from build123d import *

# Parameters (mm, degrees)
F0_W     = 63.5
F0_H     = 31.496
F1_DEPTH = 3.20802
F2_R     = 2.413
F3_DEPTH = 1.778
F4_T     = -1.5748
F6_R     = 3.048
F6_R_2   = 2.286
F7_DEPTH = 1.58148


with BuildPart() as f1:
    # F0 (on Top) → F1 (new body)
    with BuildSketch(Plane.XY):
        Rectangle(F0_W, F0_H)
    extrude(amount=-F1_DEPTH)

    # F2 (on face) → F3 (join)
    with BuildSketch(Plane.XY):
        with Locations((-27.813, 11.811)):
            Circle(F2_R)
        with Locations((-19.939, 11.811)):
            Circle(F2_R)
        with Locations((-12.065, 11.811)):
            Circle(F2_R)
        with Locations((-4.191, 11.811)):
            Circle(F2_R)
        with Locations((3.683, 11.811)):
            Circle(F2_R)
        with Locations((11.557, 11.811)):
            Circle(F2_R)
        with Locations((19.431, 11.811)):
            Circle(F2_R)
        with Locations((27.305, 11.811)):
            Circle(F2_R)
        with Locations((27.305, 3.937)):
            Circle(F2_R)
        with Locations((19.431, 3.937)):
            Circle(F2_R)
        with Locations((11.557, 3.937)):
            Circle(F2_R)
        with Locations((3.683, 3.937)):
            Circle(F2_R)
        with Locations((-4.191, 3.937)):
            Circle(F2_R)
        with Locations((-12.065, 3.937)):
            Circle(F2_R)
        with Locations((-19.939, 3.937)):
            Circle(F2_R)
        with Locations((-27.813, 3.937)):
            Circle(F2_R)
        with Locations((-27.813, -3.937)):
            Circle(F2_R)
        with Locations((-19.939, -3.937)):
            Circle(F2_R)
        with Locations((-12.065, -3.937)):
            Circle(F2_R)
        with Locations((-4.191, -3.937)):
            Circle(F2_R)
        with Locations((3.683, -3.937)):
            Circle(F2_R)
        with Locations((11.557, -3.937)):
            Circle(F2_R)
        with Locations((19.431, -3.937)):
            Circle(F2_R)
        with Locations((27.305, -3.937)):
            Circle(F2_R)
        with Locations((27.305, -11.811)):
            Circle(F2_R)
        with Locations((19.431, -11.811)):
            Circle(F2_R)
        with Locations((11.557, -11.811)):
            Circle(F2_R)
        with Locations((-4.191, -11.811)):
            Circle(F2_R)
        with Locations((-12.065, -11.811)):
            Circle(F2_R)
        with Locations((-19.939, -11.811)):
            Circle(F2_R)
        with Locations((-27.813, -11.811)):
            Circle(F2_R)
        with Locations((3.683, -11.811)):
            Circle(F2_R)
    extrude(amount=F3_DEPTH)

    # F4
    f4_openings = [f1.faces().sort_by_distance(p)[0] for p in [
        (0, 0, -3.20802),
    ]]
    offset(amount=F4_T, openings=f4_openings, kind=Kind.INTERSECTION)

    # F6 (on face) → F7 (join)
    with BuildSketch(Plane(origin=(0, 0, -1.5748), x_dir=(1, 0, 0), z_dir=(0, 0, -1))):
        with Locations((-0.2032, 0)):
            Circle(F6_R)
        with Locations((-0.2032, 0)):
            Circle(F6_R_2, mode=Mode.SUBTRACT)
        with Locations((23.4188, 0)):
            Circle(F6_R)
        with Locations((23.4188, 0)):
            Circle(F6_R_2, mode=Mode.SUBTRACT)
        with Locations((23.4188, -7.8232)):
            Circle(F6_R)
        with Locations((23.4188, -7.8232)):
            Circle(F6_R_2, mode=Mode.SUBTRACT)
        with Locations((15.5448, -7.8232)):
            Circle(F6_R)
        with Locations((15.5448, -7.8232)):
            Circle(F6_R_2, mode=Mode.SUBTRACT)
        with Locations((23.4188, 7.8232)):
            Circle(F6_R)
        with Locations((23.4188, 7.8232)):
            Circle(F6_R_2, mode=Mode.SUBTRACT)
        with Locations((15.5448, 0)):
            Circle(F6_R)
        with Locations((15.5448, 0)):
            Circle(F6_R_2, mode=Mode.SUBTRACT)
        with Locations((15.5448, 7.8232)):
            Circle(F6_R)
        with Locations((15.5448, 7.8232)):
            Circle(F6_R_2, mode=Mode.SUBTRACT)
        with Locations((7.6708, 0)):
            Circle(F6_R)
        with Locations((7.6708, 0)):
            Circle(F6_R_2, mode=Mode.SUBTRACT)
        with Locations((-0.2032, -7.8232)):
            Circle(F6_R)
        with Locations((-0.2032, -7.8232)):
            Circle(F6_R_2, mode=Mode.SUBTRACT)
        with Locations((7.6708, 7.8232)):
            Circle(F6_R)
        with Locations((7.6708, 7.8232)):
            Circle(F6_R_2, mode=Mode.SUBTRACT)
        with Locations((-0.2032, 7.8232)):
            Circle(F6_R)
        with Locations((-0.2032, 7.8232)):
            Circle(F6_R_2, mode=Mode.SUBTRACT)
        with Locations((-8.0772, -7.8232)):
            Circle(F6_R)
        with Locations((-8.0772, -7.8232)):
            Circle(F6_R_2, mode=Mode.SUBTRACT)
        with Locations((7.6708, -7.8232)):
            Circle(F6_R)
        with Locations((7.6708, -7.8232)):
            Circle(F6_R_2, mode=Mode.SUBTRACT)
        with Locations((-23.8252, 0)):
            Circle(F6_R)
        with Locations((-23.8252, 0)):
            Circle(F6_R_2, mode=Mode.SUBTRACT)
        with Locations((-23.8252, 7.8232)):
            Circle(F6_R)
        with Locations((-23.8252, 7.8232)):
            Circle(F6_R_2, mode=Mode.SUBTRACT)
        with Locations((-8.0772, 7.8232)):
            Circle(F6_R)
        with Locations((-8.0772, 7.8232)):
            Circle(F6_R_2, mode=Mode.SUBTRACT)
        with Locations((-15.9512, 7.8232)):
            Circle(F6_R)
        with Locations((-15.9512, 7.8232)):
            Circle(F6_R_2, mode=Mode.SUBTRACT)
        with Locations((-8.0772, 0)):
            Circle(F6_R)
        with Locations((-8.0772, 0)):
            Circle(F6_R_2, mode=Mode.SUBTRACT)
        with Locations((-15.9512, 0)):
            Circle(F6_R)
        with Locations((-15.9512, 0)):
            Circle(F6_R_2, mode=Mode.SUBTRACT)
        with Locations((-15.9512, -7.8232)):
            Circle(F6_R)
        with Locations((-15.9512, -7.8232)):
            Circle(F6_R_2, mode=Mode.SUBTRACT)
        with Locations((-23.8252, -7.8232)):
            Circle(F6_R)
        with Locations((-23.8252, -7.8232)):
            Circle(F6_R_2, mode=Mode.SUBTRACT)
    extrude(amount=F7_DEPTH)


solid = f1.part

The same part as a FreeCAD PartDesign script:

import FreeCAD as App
import Part
import Sketcher

V = App.Vector
Q = App.Units.Quantity


def faces_at(feature, points):
    """Names of the faces that lie closest to the given points."""
    faces = feature.Shape.Faces
    near = lambda p: min(range(len(faces)), key=lambda i: faces[i].distToShape(Part.Vertex(*p))[0])
    return sorted({f"Face{near(p) + 1}" for p in points})

doc = App.newDocument("Part")
body = doc.addObject("PartDesign::Body", "Body")

# Sketch on XY plane
sketch1 = body.newObject("Sketcher::SketchObject", "Sketch")
sketch1.AttachmentSupport = (doc.getObject("XY_Plane"), [""])
sketch1.MapMode = "FlatFace"
sketch1.addGeometry([
    Part.LineSegment(V(-32, 16, 0), V(-32, -16, 0)),
    Part.LineSegment(V(-32, -16, 0), V(32, -16, 0)),
    Part.LineSegment(V(32, -16, 0), V(32, 16, 0)),
    Part.LineSegment(V(32, 16, 0), V(-32, 16, 0)),
], False)
sketch1.addConstraint([
    Sketcher.Constraint("Coincident", 0, 2, 1, 1),
    Sketcher.Constraint("Coincident", 1, 2, 2, 1),
    Sketcher.Constraint("Coincident", 2, 2, 3, 1),
    Sketcher.Constraint("Coincident", 3, 2, 0, 1),
    Sketcher.Constraint("Vertical", 0),
    Sketcher.Constraint("Horizontal", 1),
    Sketcher.Constraint("Vertical", 2),
    Sketcher.Constraint("Horizontal", 3),
    Sketcher.Constraint("Symmetric", 0, 2, 2, 2, -1, 1),
    Sketcher.Constraint("DistanceX", 1, 1, 1, 2, Q("2.5 in")),
    Sketcher.Constraint("DistanceY", 0, 2, 0, 1, Q("1.24 in")),
])
pad1 = body.newObject("PartDesign::Pad", "Pad")
pad1.Profile = sketch1
pad1.Length = Q("0.1263 in")
pad1.Reversed = True

# Sketch on XY plane
sketch2 = body.newObject("Sketcher::SketchObject", "Sketch001")
sketch2.AttachmentSupport = (doc.getObject("XY_Plane"), [""])
sketch2.MapMode = "FlatFace"
sketch2.addGeometry([
    Part.Circle(V(-27.8, 11.8, 0), V(0, 0, 1), 2.4),  # 0
    Part.Circle(V(-19.9, 11.8, 0), V(0, 0, 1), 2.4),  # 1
    Part.Circle(V(-12.1, 11.8, 0), V(0, 0, 1), 2.4),  # 2
    Part.Circle(V(-4.2, 11.8, 0), V(0, 0, 1), 2.4),  # 3
    Part.Circle(V(3.7, 11.8, 0), V(0, 0, 1), 2.4),  # 4
    Part.Circle(V(11.6, 11.8, 0), V(0, 0, 1), 2.4),  # 5
    Part.Circle(V(19.4, 11.8, 0), V(0, 0, 1), 2.4),  # 6
    Part.Circle(V(27.3, 11.8, 0), V(0, 0, 1), 2.4),  # 7
    Part.Circle(V(27.3, 3.9, 0), V(0, 0, 1), 2.4),  # 8
    Part.Circle(V(19.4, 3.9, 0), V(0, 0, 1), 2.4),  # 9
    Part.Circle(V(11.6, 3.9, 0), V(0, 0, 1), 2.4),  # 10
    Part.Circle(V(3.7, 3.9, 0), V(0, 0, 1), 2.4),  # 11
    Part.Circle(V(-4.2, 3.9, 0), V(0, 0, 1), 2.4),  # 12
    Part.Circle(V(-12.1, 3.9, 0), V(0, 0, 1), 2.4),  # 13
    Part.Circle(V(-19.9, 3.9, 0), V(0, 0, 1), 2.4),  # 14
    Part.Circle(V(-27.8, 3.9, 0), V(0, 0, 1), 2.4),  # 15
    Part.Circle(V(-27.8, -3.9, 0), V(0, 0, 1), 2.4),  # 16
    Part.Circle(V(-19.9, -3.9, 0), V(0, 0, 1), 2.4),  # 17
    Part.Circle(V(-12.1, -3.9, 0), V(0, 0, 1), 2.4),  # 18
    Part.Circle(V(-4.2, -3.9, 0), V(0, 0, 1), 2.4),  # 19
    Part.Circle(V(3.7, -3.9, 0), V(0, 0, 1), 2.4),  # 20
    Part.Circle(V(11.6, -3.9, 0), V(0, 0, 1), 2.4),  # 21
    Part.Circle(V(19.4, -3.9, 0), V(0, 0, 1), 2.4),  # 22
    Part.Circle(V(27.3, -3.9, 0), V(0, 0, 1), 2.4),  # 23
    Part.Circle(V(27.3, -11.8, 0), V(0, 0, 1), 2.4),  # 24
    Part.Circle(V(19.4, -11.8, 0), V(0, 0, 1), 2.4),  # 25
    Part.Circle(V(11.6, -11.8, 0), V(0, 0, 1), 2.4),  # 26
    Part.Circle(V(-4.2, -11.8, 0), V(0, 0, 1), 2.4),  # 27
    Part.Circle(V(-12.1, -11.8, 0), V(0, 0, 1), 2.4),  # 28
    Part.Circle(V(-19.9, -11.8, 0), V(0, 0, 1), 2.4),  # 29
    Part.Circle(V(-27.8, -11.8, 0), V(0, 0, 1), 2.4),  # 30
    Part.Circle(V(3.7, -11.8, 0), V(0, 0, 1), 2.4),  # 31
], False)
sketch2.addConstraint([
    Sketcher.Constraint("Equal", 0, 1),
    Sketcher.Constraint("Equal", 1, 2),
    Sketcher.Constraint("Equal", 2, 3),
    Sketcher.Constraint("Equal", 3, 4),
    Sketcher.Constraint("Equal", 4, 5),
    Sketcher.Constraint("Equal", 5, 6),
    Sketcher.Constraint("Equal", 6, 7),
    Sketcher.Constraint("Equal", 7, 8),
    Sketcher.Constraint("Equal", 8, 9),
    Sketcher.Constraint("Equal", 9, 10),
    Sketcher.Constraint("Equal", 10, 11),
    Sketcher.Constraint("Equal", 11, 12),
    Sketcher.Constraint("Equal", 12, 13),
    Sketcher.Constraint("Equal", 13, 14),
    Sketcher.Constraint("Equal", 14, 15),
    Sketcher.Constraint("Equal", 15, 16),
    Sketcher.Constraint("Equal", 16, 17),
    Sketcher.Constraint("Equal", 17, 18),
    Sketcher.Constraint("Equal", 18, 19),
    Sketcher.Constraint("Equal", 19, 20),
    Sketcher.Constraint("Equal", 20, 21),
    Sketcher.Constraint("Equal", 21, 22),
    Sketcher.Constraint("Equal", 22, 23),
    Sketcher.Constraint("Equal", 23, 24),
    Sketcher.Constraint("Equal", 24, 25),
    Sketcher.Constraint("Equal", 25, 26),
    Sketcher.Constraint("Equal", 26, 27),
    Sketcher.Constraint("Equal", 27, 28),
    Sketcher.Constraint("Equal", 28, 29),
    Sketcher.Constraint("Equal", 29, 30),
    Sketcher.Constraint("Equal", 30, 31),
    Sketcher.Constraint("Symmetric", 15, 3, 16, 3, -1),
    Sketcher.Constraint("Symmetric", 14, 3, 17, 3, -1),
    Sketcher.Constraint("Symmetric", 13, 3, 18, 3, -1),
    Sketcher.Constraint("Symmetric", 12, 3, 19, 3, -1),
    Sketcher.Constraint("Symmetric", 11, 3, 20, 3, -1),
    Sketcher.Constraint("Symmetric", 10, 3, 21, 3, -1),
    Sketcher.Constraint("Symmetric", 9, 3, 22, 3, -1),
    Sketcher.Constraint("Symmetric", 8, 3, 23, 3, -1),
    Sketcher.Constraint("Symmetric", 7, 3, 24, 3, -1),
    Sketcher.Constraint("Symmetric", 6, 3, 25, 3, -1),
    Sketcher.Constraint("Symmetric", 5, 3, 26, 3, -1),
    Sketcher.Constraint("Symmetric", 3, 3, 27, 3, -1),
    Sketcher.Constraint("Symmetric", 2, 3, 28, 3, -1),
    Sketcher.Constraint("Symmetric", 1, 3, 29, 3, -1),
    Sketcher.Constraint("Symmetric", 0, 3, 30, 3, -1),
    Sketcher.Constraint("Symmetric", 4, 3, 31, 3, -1),
    Sketcher.Constraint("Horizontal", 0, 3, 1, 3),
    Sketcher.Constraint("Horizontal", 1, 3, 2, 3),
    Sketcher.Constraint("Horizontal", 2, 3, 3, 3),
    Sketcher.Constraint("Horizontal", 3, 3, 4, 3),
    Sketcher.Constraint("Horizontal", 4, 3, 5, 3),
    Sketcher.Constraint("Horizontal", 5, 3, 6, 3),
    Sketcher.Constraint("Horizontal", 6, 3, 7, 3),
    Sketcher.Constraint("Horizontal", 8, 3, 9, 3),
    Sketcher.Constraint("Horizontal", 9, 3, 10, 3),
    Sketcher.Constraint("Horizontal", 10, 3, 11, 3),
    Sketcher.Constraint("Horizontal", 11, 3, 12, 3),
    Sketcher.Constraint("Horizontal", 12, 3, 13, 3),
    Sketcher.Constraint("Horizontal", 13, 3, 14, 3),
    Sketcher.Constraint("Horizontal", 14, 3, 15, 3),
    Sketcher.Constraint("Vertical", 7, 3, 8, 3),
    Sketcher.Constraint("Vertical", 6, 3, 9, 3),
    Sketcher.Constraint("Vertical", 5, 3, 10, 3),
    Sketcher.Constraint("Vertical", 4, 3, 11, 3),
    Sketcher.Constraint("Vertical", 3, 3, 12, 3),
    Sketcher.Constraint("Vertical", 2, 3, 13, 3),
    Sketcher.Constraint("Vertical", 1, 3, 14, 3),
    Sketcher.Constraint("Vertical", 0, 3, 15, 3),
    Sketcher.Constraint("Diameter", 0, Q("0.19 in")),
    Sketcher.Constraint("DistanceX", 0, 3, 1, 3, Q("0.31 in")),
    Sketcher.Constraint("DistanceX", 1, 3, 2, 3, Q("0.31 in")),
    Sketcher.Constraint("DistanceX", 2, 3, 3, 3, Q("0.31 in")),
    Sketcher.Constraint("DistanceX", 3, 3, 4, 3, Q("0.31 in")),
    Sketcher.Constraint("DistanceX", 4, 3, 5, 3, Q("0.31 in")),
    Sketcher.Constraint("DistanceX", 5, 3, 6, 3, Q("0.31 in")),
    Sketcher.Constraint("DistanceX", 6, 3, 7, 3, Q("0.31 in")),
    Sketcher.Constraint("DistanceY", 8, 3, 7, 3, Q("0.31 in")),
    Sketcher.Constraint("DistanceY", 16, 3, 15, 3, Q("0.31 in")),
    Sketcher.Constraint("DistanceX", 0, 3, -1, 1, Q("1.095 in")),
])
pad2 = body.newObject("PartDesign::Pad", "Pad001")
pad2.Profile = sketch2
pad2.Length = Q("0.07 in")
doc.recompute()

thickness = body.newObject("PartDesign::Thickness", "Thickness")
thickness.Base = (pad2, faces_at(pad2, [(0, 0, -3.208)]))
thickness.Value = Q("0.062 in")
thickness.Reversed = True
thickness.Join = "Intersection"

# Sketch on XY plane
sketch3 = body.newObject("Sketcher::SketchObject", "Sketch002")
sketch3.AttachmentSupport = (doc.getObject("XY_Plane"), [""])
sketch3.MapMode = "FlatFace"
sketch3.AttachmentOffset = App.Placement(V(0, 0, -0.062 * 25.4), App.Rotation())
sketch3.addGeometry([
    Part.Circle(V(-0.2, 0, 0), V(0, 0, 1), 3),  # 0
    Part.Circle(V(-0.2, 0, 0), V(0, 0, 1), 2.3),  # 1
    Part.Circle(V(23.4, 0, 0), V(0, 0, 1), 3),  # 2
    Part.Circle(V(23.4, 0, 0), V(0, 0, 1), 2.3),  # 3
    Part.Circle(V(23.4, 7.8, 0), V(0, 0, 1), 3),  # 4
    Part.Circle(V(23.4, 7.8, 0), V(0, 0, 1), 2.3),  # 5
    Part.Circle(V(15.5, 7.8, 0), V(0, 0, 1), 3),  # 6
    Part.Circle(V(15.5, 7.8, 0), V(0, 0, 1), 2.3),  # 7
    Part.Circle(V(23.4, -7.8, 0), V(0, 0, 1), 3),  # 8
    Part.Circle(V(23.4, -7.8, 0), V(0, 0, 1), 2.3),  # 9
    Part.Circle(V(15.5, 0, 0), V(0, 0, 1), 3),  # 10
    Part.Circle(V(15.5, 0, 0), V(0, 0, 1), 2.3),  # 11
    Part.Circle(V(15.5, -7.8, 0), V(0, 0, 1), 3),  # 12
    Part.Circle(V(15.5, -7.8, 0), V(0, 0, 1), 2.3),  # 13
    Part.Circle(V(7.7, 0, 0), V(0, 0, 1), 3),  # 14
    Part.Circle(V(7.7, 0, 0), V(0, 0, 1), 2.3),  # 15
    Part.Circle(V(-0.2, 7.8, 0), V(0, 0, 1), 3),  # 16
    Part.Circle(V(-0.2, 7.8, 0), V(0, 0, 1), 2.3),  # 17
    Part.Circle(V(7.7, -7.8, 0), V(0, 0, 1), 3),  # 18
    Part.Circle(V(7.7, -7.8, 0), V(0, 0, 1), 2.3),  # 19
    Part.Circle(V(-0.2, -7.8, 0), V(0, 0, 1), 3),  # 20
    Part.Circle(V(-0.2, -7.8, 0), V(0, 0, 1), 2.3),  # 21
    Part.Circle(V(-8.1, 7.8, 0), V(0, 0, 1), 3),  # 22
    Part.Circle(V(-8.1, 7.8, 0), V(0, 0, 1), 2.3),  # 23
    Part.Circle(V(7.7, 7.8, 0), V(0, 0, 1), 3),  # 24
    Part.Circle(V(7.7, 7.8, 0), V(0, 0, 1), 2.3),  # 25
    Part.Circle(V(-23.8, 0, 0), V(0, 0, 1), 3),  # 26
    Part.Circle(V(-23.8, 0, 0), V(0, 0, 1), 2.3),  # 27
    Part.Circle(V(-23.8, -7.8, 0), V(0, 0, 1), 3),  # 28
    Part.Circle(V(-23.8, -7.8, 0), V(0, 0, 1), 2.3),  # 29
    Part.Circle(V(-8.1, -7.8, 0), V(0, 0, 1), 3),  # 30
    Part.Circle(V(-8.1, -7.8, 0), V(0, 0, 1), 2.3),  # 31
    Part.Circle(V(-16, -7.8, 0), V(0, 0, 1), 3),  # 32
    Part.Circle(V(-16, -7.8, 0), V(0, 0, 1), 2.3),  # 33
    Part.Circle(V(-8.1, 0, 0), V(0, 0, 1), 3),  # 34
    Part.Circle(V(-8.1, 0, 0), V(0, 0, 1), 2.3),  # 35
    Part.Circle(V(-16, 0, 0), V(0, 0, 1), 3),  # 36
    Part.Circle(V(-16, 0, 0), V(0, 0, 1), 2.3),  # 37
    Part.Circle(V(-16, 7.8, 0), V(0, 0, 1), 3),  # 38
    Part.Circle(V(-16, 7.8, 0), V(0, 0, 1), 2.3),  # 39
    Part.Circle(V(-23.8, 7.8, 0), V(0, 0, 1), 3),  # 40
    Part.Circle(V(-23.8, 7.8, 0), V(0, 0, 1), 2.3),  # 41
], False)
sketch3.addConstraint([
    Sketcher.Constraint("Coincident", 1, 3, 0, 3),
    Sketcher.Constraint("Coincident", 3, 3, 2, 3),
    Sketcher.Constraint("Coincident", 5, 3, 4, 3),
    Sketcher.Constraint("Coincident", 7, 3, 6, 3),
    Sketcher.Constraint("Coincident", 9, 3, 8, 3),
    Sketcher.Constraint("Coincident", 11, 3, 10, 3),
    Sketcher.Constraint("Coincident", 13, 3, 12, 3),
    Sketcher.Constraint("Coincident", 15, 3, 14, 3),
    Sketcher.Constraint("Coincident", 17, 3, 16, 3),
    Sketcher.Constraint("Coincident", 19, 3, 18, 3),
    Sketcher.Constraint("Coincident", 21, 3, 20, 3),
    Sketcher.Constraint("Coincident", 23, 3, 22, 3),
    Sketcher.Constraint("Coincident", 25, 3, 24, 3),
    Sketcher.Constraint("Coincident", 27, 3, 26, 3),
    Sketcher.Constraint("Coincident", 29, 3, 28, 3),
    Sketcher.Constraint("Coincident", 31, 3, 30, 3),
    Sketcher.Constraint("Coincident", 33, 3, 32, 3),
    Sketcher.Constraint("Coincident", 35, 3, 34, 3),
    Sketcher.Constraint("Coincident", 37, 3, 36, 3),
    Sketcher.Constraint("Coincident", 39, 3, 38, 3),
    Sketcher.Constraint("Coincident", 41, 3, 40, 3),
    Sketcher.Constraint("Equal", 0, 2),
    Sketcher.Constraint("Equal", 1, 3),
    Sketcher.Constraint("Equal", 2, 4),
    Sketcher.Constraint("Equal", 3, 5),
    Sketcher.Constraint("Equal", 4, 6),
    Sketcher.Constraint("Equal", 5, 7),
    Sketcher.Constraint("Equal", 6, 8),
    Sketcher.Constraint("Equal", 7, 9),
    Sketcher.Constraint("Equal", 8, 10),
    Sketcher.Constraint("Equal", 9, 11),
    Sketcher.Constraint("Equal", 10, 12),
    Sketcher.Constraint("Equal", 11, 13),
    Sketcher.Constraint("Equal", 12, 14),
    Sketcher.Constraint("Equal", 13, 15),
    Sketcher.Constraint("Equal", 14, 16),
    Sketcher.Constraint("Equal", 15, 17),
    Sketcher.Constraint("Equal", 16, 18),
    Sketcher.Constraint("Equal", 17, 19),
    Sketcher.Constraint("Equal", 18, 20),
    Sketcher.Constraint("Equal", 19, 21),
    Sketcher.Constraint("Equal", 20, 22),
    Sketcher.Constraint("Equal", 21, 23),
    Sketcher.Constraint("Equal", 22, 24),
    Sketcher.Constraint("Equal", 23, 25),
    Sketcher.Constraint("Equal", 24, 26),
    Sketcher.Constraint("Equal", 25, 27),
    Sketcher.Constraint("Equal", 26, 28),
    Sketcher.Constraint("Equal", 27, 29),
    Sketcher.Constraint("Equal", 28, 30),
    Sketcher.Constraint("Equal", 29, 31),
    Sketcher.Constraint("Equal", 30, 32),
    Sketcher.Constraint("Equal", 31, 33),
    Sketcher.Constraint("Equal", 32, 34),
    Sketcher.Constraint("Equal", 33, 35),
    Sketcher.Constraint("Equal", 34, 36),
    Sketcher.Constraint("Equal", 35, 37),
    Sketcher.Constraint("Equal", 36, 38),
    Sketcher.Constraint("Equal", 37, 39),
    Sketcher.Constraint("Equal", 38, 40),
    Sketcher.Constraint("Equal", 39, 41),
    Sketcher.Constraint("Symmetric", 4, 3, 8, 3, -1),
    Sketcher.Constraint("Symmetric", 6, 3, 12, 3, -1),
    Sketcher.Constraint("Symmetric", 16, 3, 20, 3, -1),
    Sketcher.Constraint("Symmetric", 18, 3, 24, 3, -1),
    Sketcher.Constraint("Symmetric", 22, 3, 30, 3, -1),
    Sketcher.Constraint("Symmetric", 32, 3, 38, 3, -1),
    Sketcher.Constraint("Symmetric", 28, 3, 40, 3, -1),
    Sketcher.Constraint("PointOnObject", 0, 3, -1),
    Sketcher.Constraint("PointOnObject", 2, 3, -1),
    Sketcher.Constraint("PointOnObject", 10, 3, -1),
    Sketcher.Constraint("PointOnObject", 14, 3, -1),
    Sketcher.Constraint("PointOnObject", 26, 3, -1),
    Sketcher.Constraint("PointOnObject", 34, 3, -1),
    Sketcher.Constraint("PointOnObject", 36, 3, -1),
    Sketcher.Constraint("Horizontal", 5, 3, 6, 3),
    Sketcher.Constraint("Horizontal", 7, 3, 16, 3),
    Sketcher.Constraint("Horizontal", 13, 3, 18, 3),
    Sketcher.Constraint("Horizontal", 17, 3, 22, 3),
    Sketcher.Constraint("Horizontal", 21, 3, 28, 3),
    Sketcher.Constraint("Horizontal", 31, 3, 32, 3),
    Sketcher.Constraint("Vertical", 3, 3, 4, 3),
    Sketcher.Constraint("Vertical", 7, 3, 10, 3),
    Sketcher.Constraint("Vertical", 1, 3, 16, 3),
    Sketcher.Constraint("Vertical", 15, 3, 18, 3),
    Sketcher.Constraint("Vertical", 27, 3, 28, 3),
    Sketcher.Constraint("Vertical", 31, 3, 34, 3),
    Sketcher.Constraint("Vertical", 33, 3, 36, 3),
    Sketcher.Constraint("Diameter", 0, Q("0.24 in")),
    Sketcher.Constraint("Diameter", 1, Q("0.18 in")),
    Sketcher.Constraint("DistanceX", 0, 3, 2, 3, Q("0.93 in")),
    Sketcher.Constraint("DistanceX", 6, 3, 4, 3, Q("0.31 in")),
    Sketcher.Constraint("DistanceX", 0, 3, 14, 3, Q("0.31 in")),
    Sketcher.Constraint("DistanceX", 22, 3, 16, 3, Q("0.31 in")),
    Sketcher.Constraint("DistanceX", 26, 3, 22, 3, Q("0.62 in")),
    Sketcher.Constraint("DistanceX", 28, 3, 32, 3, Q("0.31 in")),
    Sketcher.Constraint("DistanceX", 0, 3, -1, 1, Q("0.008 in")),
    Sketcher.Constraint("DistanceY", -1, 1, 4, 3, Q("0.308 in")),
])
pad3 = body.newObject("PartDesign::Pad", "Pad002")
pad3.Profile = sketch3
pad3.Length = 1.58148
pad3.Reversed = True

doc.recompute()
